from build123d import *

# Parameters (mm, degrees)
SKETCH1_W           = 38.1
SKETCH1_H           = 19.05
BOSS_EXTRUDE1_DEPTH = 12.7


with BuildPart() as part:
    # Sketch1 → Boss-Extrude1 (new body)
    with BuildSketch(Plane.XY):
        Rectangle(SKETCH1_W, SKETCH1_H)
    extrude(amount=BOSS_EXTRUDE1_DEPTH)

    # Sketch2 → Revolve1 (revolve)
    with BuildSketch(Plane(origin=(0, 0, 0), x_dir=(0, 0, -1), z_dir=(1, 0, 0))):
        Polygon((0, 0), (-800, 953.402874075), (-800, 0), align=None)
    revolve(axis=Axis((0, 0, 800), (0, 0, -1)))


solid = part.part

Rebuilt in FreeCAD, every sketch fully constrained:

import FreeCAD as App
import Part
import Sketcher
Q = App.Units.Quantity


def add_polygon(sketch, points):
    """Adds a closed chain of lines whose ends are joined by coincident constraints."""
    first, n = sketch.GeometryCount, len(points)
    for a, b in zip(points, points[1:] + points[:1]):
        sketch.addGeometry(Part.LineSegment(App.Vector(*a, 0), App.Vector(*b, 0)), False)
    for i in range(n):
        sketch.addConstraint(Sketcher.Constraint("Coincident", first + i, 2, first + (i + 1) % n, 1))

doc = App.newDocument("Part")
body = doc.addObject("PartDesign::Body", "Body")

# Sketch on XY plane
sketch1 = body.newObject("Sketcher::SketchObject", "Sketch")
sketch1.AttachmentSupport = (doc.getObject("XY_Plane"), [""])
sketch1.MapMode = "FlatFace"
add_polygon(sketch1, [(-19.05, 9.525), (-19.05, -9.525), (19.05, -9.525), (19.05, 9.525)])  # lines 0-3
sketch1.addConstraint([
    Sketcher.Constraint("Vertical", 0),
    Sketcher.Constraint("Horizontal", 1),
    Sketcher.Constraint("Vertical", 2),
    Sketcher.Constraint("Horizontal", 3),
    Sketcher.Constraint("Symmetric", 0, 2, 2, 2, -1, 1),
    Sketcher.Constraint("DistanceX", 1, 1, 1, 2, Q("1.5 in")),
    Sketcher.Constraint("DistanceY", 0, 2, 0, 1, Q("0.75 in")),
])
pad1 = body.newObject("PartDesign::Pad", "Pad")
pad1.Profile = sketch1
pad1.Length = Q("0.5 in")

# Sketch on YZ plane
sketch2 = body.newObject("Sketcher::SketchObject", "Sketch001")
sketch2.AttachmentSupport = (doc.getObject("YZ_Plane"), [""])
sketch2.MapMode = "FlatFace"
add_polygon(sketch2, [(0, 0), (953.402874, 800), (0, 800)])  # lines 0-2
sketch2.addConstraint([
    Sketcher.Constraint("Horizontal", 1),
    Sketcher.Constraint("Vertical", 2),
    Sketcher.Constraint("Coincident", 2, 2, -1, 1),
    Sketcher.Constraint("Angle", 0, Q("40 deg")),
    Sketcher.Constraint("DistanceY", 2, 2, 2, 1, Q("800 mm")),
])
revolution = body.newObject("PartDesign::Revolution", "Revolution")
revolution.Profile = sketch2
revolution.ReferenceAxis = (sketch2, ["V_Axis"])
revolution.Angle = 360

doc.recompute()
